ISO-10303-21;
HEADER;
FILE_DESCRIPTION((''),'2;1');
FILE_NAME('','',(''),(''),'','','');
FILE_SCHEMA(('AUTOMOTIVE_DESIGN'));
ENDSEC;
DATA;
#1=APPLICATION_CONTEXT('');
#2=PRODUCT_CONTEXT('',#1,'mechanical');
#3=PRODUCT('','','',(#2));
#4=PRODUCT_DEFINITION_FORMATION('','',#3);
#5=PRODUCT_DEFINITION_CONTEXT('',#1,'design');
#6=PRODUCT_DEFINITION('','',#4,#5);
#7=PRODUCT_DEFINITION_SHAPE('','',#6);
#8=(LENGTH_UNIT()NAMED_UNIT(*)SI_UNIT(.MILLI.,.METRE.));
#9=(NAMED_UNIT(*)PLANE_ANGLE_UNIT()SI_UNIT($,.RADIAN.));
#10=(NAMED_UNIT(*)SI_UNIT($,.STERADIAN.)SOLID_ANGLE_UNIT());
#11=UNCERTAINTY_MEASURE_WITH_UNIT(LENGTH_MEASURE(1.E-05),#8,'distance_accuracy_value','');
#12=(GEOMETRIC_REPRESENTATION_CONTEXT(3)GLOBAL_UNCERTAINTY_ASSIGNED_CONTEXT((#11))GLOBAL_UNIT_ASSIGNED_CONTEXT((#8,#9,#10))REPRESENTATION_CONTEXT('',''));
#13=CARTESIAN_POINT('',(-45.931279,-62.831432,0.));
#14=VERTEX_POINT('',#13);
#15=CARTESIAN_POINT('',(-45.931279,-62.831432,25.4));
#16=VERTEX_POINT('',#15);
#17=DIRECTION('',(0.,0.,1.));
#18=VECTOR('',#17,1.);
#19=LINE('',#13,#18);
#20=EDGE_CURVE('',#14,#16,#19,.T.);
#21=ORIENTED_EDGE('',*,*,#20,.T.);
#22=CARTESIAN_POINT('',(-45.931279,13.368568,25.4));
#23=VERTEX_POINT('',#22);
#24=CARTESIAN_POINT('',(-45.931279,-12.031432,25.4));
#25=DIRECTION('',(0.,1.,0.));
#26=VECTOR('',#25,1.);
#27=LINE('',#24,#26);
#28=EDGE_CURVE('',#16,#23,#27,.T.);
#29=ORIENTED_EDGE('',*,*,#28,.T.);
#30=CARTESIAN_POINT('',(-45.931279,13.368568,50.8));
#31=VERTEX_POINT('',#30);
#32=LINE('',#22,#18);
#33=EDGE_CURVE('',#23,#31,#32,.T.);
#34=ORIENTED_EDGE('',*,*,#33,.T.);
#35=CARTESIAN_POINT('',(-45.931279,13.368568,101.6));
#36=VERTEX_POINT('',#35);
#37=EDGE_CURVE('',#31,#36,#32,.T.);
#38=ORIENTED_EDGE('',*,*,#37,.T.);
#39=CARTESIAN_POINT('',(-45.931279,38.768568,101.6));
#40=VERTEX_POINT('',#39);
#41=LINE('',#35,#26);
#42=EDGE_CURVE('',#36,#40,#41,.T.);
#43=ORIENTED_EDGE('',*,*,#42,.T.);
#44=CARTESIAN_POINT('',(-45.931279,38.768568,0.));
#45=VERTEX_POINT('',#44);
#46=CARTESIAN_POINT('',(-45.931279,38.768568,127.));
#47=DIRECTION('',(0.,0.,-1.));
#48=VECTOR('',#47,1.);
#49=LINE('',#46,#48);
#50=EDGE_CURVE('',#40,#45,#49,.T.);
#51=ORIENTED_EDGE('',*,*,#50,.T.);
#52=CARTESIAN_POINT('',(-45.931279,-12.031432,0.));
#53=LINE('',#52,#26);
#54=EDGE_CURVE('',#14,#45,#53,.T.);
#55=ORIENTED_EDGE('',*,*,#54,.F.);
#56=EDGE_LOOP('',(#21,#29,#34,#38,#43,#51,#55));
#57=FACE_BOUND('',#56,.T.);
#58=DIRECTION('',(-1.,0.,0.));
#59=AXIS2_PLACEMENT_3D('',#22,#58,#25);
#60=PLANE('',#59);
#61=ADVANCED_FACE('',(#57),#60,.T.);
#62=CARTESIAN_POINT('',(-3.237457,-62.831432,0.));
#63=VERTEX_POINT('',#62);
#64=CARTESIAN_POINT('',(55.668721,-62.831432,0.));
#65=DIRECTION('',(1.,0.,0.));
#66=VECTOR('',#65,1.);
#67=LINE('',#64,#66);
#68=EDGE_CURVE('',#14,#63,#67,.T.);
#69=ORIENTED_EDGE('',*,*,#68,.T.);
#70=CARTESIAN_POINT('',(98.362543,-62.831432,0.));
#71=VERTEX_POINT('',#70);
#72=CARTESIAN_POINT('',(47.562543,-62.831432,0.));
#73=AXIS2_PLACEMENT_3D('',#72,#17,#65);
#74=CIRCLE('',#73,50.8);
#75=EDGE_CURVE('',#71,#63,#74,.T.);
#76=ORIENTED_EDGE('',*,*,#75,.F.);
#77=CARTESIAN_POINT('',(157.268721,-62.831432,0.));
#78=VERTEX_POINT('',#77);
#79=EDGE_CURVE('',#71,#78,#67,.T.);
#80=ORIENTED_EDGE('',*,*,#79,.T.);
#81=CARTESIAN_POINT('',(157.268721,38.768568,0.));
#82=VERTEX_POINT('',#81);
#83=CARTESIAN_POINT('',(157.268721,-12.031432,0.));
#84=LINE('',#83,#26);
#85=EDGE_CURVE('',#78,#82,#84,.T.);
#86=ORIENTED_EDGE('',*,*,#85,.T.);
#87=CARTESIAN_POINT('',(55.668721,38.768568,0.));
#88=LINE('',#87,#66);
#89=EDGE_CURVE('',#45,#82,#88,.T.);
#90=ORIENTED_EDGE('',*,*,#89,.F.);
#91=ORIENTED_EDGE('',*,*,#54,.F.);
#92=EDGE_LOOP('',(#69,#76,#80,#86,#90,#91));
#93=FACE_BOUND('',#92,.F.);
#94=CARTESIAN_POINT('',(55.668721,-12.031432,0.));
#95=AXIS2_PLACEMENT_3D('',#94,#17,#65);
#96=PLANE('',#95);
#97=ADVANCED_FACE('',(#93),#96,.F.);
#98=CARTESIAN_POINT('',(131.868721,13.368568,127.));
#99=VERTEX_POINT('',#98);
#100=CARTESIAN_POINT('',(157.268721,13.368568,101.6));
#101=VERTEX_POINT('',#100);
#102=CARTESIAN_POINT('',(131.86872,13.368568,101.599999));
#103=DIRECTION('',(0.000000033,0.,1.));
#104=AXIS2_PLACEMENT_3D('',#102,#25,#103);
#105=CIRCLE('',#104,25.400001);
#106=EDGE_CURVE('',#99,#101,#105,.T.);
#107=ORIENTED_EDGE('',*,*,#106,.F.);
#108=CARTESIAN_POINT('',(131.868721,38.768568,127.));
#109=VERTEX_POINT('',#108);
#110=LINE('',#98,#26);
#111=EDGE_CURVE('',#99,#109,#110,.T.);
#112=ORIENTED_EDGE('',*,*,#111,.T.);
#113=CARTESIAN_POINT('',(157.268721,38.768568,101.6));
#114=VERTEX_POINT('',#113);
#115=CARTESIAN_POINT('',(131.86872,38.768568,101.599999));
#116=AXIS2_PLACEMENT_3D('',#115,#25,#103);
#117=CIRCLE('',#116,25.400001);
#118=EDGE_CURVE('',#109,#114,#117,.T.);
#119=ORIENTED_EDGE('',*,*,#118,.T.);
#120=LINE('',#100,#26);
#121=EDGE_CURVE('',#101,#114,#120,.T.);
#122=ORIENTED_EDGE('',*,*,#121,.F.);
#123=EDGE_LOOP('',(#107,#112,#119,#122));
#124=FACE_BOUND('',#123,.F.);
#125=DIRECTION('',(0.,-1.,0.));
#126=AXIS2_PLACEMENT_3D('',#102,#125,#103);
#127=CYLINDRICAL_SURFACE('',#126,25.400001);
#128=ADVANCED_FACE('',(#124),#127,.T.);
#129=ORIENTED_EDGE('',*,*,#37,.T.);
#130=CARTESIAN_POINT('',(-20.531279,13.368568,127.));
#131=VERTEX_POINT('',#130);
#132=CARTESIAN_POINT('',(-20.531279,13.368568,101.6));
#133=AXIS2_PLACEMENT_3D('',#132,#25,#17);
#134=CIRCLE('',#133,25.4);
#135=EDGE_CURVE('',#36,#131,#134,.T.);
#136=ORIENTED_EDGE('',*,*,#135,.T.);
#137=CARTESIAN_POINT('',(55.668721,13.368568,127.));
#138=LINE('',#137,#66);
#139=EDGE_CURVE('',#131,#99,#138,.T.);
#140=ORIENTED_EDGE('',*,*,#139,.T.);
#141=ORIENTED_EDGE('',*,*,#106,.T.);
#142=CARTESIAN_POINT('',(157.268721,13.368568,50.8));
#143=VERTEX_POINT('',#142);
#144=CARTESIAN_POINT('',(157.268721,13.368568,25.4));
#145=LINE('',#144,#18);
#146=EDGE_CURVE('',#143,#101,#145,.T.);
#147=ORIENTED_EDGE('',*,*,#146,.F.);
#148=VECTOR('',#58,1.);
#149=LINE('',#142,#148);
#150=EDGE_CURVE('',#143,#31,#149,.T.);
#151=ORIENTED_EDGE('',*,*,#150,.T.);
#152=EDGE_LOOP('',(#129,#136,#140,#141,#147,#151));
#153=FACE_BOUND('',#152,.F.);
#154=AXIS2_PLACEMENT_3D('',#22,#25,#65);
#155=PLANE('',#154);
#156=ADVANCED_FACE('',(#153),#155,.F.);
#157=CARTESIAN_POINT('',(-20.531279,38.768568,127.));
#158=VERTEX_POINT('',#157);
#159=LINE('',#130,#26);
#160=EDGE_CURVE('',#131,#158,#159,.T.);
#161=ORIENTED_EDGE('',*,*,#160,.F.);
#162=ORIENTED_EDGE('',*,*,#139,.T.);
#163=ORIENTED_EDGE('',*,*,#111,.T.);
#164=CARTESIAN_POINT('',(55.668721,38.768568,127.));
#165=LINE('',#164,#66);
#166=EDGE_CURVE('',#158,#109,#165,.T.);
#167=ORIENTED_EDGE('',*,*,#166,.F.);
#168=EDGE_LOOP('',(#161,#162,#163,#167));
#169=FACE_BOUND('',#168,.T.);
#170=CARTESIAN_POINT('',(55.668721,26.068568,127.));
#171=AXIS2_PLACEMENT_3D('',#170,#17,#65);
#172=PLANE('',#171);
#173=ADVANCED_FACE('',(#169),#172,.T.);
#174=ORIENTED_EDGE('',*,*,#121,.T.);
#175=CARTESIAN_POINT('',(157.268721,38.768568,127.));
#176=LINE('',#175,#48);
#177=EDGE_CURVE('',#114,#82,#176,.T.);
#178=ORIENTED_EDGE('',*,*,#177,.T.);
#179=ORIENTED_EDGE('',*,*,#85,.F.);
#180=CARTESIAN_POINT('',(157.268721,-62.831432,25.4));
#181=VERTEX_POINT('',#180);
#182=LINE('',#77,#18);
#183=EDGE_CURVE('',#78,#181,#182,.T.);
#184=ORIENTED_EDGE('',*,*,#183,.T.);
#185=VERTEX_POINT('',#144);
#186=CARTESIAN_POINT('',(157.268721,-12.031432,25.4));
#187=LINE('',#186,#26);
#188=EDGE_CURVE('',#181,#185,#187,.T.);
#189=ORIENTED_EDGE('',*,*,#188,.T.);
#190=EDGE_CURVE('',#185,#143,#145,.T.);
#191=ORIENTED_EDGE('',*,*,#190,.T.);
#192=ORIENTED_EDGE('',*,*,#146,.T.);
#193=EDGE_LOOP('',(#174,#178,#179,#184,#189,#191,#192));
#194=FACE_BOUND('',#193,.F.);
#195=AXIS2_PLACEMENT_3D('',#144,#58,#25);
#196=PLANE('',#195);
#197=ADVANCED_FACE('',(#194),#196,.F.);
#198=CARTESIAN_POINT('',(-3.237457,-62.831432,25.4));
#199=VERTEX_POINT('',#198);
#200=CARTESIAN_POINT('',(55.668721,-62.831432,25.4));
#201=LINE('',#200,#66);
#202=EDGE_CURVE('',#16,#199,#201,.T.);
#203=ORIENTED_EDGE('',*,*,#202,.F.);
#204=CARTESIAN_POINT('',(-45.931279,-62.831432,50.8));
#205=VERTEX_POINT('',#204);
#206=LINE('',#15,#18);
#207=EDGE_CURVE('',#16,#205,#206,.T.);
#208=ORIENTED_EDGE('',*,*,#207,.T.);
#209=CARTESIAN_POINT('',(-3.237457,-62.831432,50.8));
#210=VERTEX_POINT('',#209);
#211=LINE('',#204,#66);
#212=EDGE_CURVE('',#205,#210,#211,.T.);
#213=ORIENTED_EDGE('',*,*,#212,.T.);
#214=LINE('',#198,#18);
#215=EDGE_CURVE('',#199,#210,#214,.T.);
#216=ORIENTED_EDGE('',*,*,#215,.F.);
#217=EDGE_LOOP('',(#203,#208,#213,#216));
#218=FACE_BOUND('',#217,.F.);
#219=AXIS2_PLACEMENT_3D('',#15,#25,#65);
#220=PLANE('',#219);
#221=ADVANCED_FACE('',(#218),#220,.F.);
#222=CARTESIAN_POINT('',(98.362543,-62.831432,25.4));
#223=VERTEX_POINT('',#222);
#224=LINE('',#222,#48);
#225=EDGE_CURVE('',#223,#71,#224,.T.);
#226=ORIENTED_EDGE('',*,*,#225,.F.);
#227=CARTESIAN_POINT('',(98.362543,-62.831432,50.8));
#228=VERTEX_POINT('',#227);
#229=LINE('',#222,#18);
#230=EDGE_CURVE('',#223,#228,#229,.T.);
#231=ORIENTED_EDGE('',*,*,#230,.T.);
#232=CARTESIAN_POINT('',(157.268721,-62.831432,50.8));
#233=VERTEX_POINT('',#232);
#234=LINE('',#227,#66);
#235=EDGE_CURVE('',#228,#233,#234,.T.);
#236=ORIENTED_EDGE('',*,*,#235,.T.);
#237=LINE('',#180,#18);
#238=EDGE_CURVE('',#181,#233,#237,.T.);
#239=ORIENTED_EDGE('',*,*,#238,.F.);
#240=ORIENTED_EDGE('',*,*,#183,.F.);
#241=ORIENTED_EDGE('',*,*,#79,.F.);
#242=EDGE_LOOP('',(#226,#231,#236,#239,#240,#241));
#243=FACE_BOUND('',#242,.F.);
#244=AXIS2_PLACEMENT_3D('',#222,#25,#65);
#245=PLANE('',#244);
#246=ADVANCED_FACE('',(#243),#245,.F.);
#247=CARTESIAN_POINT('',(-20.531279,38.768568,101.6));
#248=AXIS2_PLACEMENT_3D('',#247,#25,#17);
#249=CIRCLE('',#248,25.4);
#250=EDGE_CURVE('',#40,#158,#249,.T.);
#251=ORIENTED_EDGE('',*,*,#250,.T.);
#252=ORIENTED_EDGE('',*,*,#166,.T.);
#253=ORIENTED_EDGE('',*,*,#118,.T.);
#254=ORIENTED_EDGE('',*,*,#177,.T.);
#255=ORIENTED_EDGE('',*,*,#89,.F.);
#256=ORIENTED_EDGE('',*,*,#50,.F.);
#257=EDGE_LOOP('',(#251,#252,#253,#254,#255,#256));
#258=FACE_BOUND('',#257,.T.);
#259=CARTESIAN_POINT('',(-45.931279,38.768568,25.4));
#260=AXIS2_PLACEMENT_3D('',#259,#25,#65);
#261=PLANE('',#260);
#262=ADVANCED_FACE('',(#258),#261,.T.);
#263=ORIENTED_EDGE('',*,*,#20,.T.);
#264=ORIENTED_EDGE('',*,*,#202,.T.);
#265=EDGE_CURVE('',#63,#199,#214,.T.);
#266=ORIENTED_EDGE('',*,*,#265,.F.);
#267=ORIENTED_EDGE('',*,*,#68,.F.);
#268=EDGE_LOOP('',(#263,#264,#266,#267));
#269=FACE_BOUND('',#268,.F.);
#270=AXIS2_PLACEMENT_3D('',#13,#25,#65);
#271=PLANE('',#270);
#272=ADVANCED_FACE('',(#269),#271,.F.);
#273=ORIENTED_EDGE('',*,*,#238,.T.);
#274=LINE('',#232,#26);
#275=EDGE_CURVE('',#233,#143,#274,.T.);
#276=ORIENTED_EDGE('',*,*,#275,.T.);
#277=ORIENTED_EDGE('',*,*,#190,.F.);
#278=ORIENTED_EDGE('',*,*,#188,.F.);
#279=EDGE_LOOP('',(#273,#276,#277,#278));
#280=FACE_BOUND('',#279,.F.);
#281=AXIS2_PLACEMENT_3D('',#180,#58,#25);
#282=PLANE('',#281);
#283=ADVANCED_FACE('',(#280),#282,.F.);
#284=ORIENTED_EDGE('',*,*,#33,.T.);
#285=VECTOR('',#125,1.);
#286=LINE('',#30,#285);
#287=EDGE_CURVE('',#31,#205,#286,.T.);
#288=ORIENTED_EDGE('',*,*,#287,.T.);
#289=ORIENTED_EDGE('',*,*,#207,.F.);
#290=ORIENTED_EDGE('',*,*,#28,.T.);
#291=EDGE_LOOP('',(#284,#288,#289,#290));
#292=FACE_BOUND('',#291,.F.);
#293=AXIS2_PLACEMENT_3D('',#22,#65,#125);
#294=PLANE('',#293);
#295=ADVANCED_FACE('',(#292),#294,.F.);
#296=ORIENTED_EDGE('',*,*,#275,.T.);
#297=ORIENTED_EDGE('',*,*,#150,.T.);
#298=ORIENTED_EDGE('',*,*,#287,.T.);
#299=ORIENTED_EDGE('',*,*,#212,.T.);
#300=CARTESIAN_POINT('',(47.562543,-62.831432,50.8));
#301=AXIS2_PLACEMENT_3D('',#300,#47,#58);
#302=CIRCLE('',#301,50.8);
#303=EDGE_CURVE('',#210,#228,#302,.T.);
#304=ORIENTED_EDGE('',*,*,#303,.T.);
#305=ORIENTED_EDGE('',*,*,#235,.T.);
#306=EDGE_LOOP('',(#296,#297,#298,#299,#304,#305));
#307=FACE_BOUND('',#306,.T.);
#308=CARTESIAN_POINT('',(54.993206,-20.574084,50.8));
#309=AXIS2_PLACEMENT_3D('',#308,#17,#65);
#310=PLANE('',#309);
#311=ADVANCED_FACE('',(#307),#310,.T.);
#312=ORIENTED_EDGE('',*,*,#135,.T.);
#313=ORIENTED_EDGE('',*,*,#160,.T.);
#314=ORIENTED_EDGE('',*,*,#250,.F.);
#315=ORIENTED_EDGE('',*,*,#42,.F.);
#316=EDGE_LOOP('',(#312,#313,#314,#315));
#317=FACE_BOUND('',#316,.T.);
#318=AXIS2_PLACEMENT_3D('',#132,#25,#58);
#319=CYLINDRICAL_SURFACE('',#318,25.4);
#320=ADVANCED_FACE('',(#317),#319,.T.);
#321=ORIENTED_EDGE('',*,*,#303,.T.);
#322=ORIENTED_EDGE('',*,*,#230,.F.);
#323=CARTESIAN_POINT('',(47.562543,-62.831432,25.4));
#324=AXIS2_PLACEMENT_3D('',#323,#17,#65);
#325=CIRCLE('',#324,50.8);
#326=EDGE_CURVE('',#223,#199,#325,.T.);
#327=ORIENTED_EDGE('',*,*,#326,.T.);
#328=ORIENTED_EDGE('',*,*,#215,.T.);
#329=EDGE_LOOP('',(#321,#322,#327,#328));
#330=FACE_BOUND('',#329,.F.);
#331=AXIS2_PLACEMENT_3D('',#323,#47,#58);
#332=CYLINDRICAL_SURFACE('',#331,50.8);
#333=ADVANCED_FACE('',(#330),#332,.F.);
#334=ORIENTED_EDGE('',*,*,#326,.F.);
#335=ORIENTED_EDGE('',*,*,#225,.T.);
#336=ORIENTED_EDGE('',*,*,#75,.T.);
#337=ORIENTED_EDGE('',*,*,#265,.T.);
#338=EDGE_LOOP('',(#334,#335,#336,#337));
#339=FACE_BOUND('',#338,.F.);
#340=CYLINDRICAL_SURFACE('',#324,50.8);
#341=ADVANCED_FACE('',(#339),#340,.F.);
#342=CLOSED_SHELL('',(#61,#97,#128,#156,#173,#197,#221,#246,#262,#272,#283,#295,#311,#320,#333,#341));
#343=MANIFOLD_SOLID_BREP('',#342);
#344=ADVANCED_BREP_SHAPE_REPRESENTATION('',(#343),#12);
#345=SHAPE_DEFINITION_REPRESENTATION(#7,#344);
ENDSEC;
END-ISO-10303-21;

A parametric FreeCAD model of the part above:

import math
import FreeCAD as App
import Part
import Sketcher
from FreeCAD import Vector
Q = App.Units.Quantity


def edges_at(feature, points):
    """Names of the edges that pass closest to the given points."""
    edges = feature.Shape.Edges
    near = lambda p: min(range(len(edges)), key=lambda i: edges[i].distToShape(Part.Vertex(*p))[0])
    return sorted({f"Edge{near(p) + 1}" for p in points})


def add_polygon(sketch, points):
    """Adds a closed chain of lines whose ends are joined by coincident constraints."""
    first, n = sketch.GeometryCount, len(points)
    for a, b in zip(points, points[1:] + points[:1]):
        sketch.addGeometry(Part.LineSegment(App.Vector(*a, 0), App.Vector(*b, 0)), False)
    for i in range(n):
        sketch.addConstraint(Sketcher.Constraint("Coincident", first + i, 2, first + (i + 1) % n, 1))

doc = App.newDocument("Part")
body = doc.addObject("PartDesign::Body", "Body")

sketch1 = doc.addObject("Sketcher::SketchObject", "Sketch")
body.addObject(sketch1)
sketch1.AttachmentSupport = (doc.XY_Plane, [""])
sketch1.MapMode = "FlatFace"
add_polygon(sketch1, [(-46, 39), (-46, -63), (157, -63), (157, 39)])
sketch1.addConstraint(Sketcher.Constraint("Vertical", 0))
sketch1.addConstraint(Sketcher.Constraint("Horizontal", 1))
sketch1.addConstraint(Sketcher.Constraint("Vertical", 2))
sketch1.addConstraint(Sketcher.Constraint("Horizontal", 3))
sketch1.addConstraint(Sketcher.Constraint("DistanceX", 1, 1, 1, 2, Q("8 in")))
sketch1.addConstraint(Sketcher.Constraint("DistanceY", 0, 2, 0, 1, Q("4 in")))
sketch1.addConstraint(Sketcher.Constraint("DistanceX", 0, 2, -1, 1, Q("45.931279 mm")))
sketch1.addConstraint(Sketcher.Constraint("DistanceY", -1, 1, 2, 2, Q("38.768568 mm")))
pad1 = doc.addObject("PartDesign::Pad", "Pad")
body.addObject(pad1)
pad1.Profile = sketch1
pad1.Length = Q("1 in")

sketch2 = doc.addObject("Sketcher::SketchObject", "Sketch001")
body.addObject(sketch2)
sketch2.AttachmentSupport = (doc.XY_Plane, [""])
sketch2.MapMode = "FlatFace"
sketch2.AttachmentOffset = App.Placement(Vector(0, 0, 1 * 25.4), App.Rotation())
add_polygon(sketch2, [(-46, 39), (-46, 13), (157, 13), (157, 39)])
sketch2.addConstraint(Sketcher.Constraint("Vertical", 0))
sketch2.addConstraint(Sketcher.Constraint("Horizontal", 1))
sketch2.addConstraint(Sketcher.Constraint("Vertical", 2))
sketch2.addConstraint(Sketcher.Constraint("Horizontal", 3))
sketch2.addConstraint(Sketcher.Constraint("DistanceX", 1, 1, 1, 2, Q("8 in")))
sketch2.addConstraint(Sketcher.Constraint("DistanceY", 0, 2, 0, 1, Q("1 in")))
sketch2.addConstraint(Sketcher.Constraint("DistanceX", 0, 2, -1, 1, Q("45.931279 mm")))
sketch2.addConstraint(Sketcher.Constraint("DistanceY", -1, 1, 2, 2, Q("38.768568 mm")))
pad2 = doc.addObject("PartDesign::Pad", "Pad001")
body.addObject(pad2)
pad2.Profile = sketch2
pad2.Length = Q("4 in")

sketch3 = doc.addObject("Sketcher::SketchObject", "Sketch002")
body.addObject(sketch3)
sketch3.AttachmentSupport = (doc.XZ_Plane, [""])
sketch3.MapMode = "FlatFace"
sketch3.AttachmentOffset = App.Placement(Vector(0, 0, -13.368568), App.Rotation())
sketch3.addGeometry(Part.LineSegment(Vector(157, 102, 0), Vector(157, 127, 0)), False)
sketch3.addGeometry(Part.LineSegment(Vector(157, 127, 0), Vector(132, 127, 0)), False)
sketch3.addGeometry(Part.ArcOfCircle(Part.Circle(Vector(132, 102, 0), Vector(0, 0, 1), 25), math.radians(0), math.radians(90)), False)
sketch3.addConstraint(Sketcher.Constraint("Coincident", 0, 2, 1, 1))
sketch3.addConstraint(Sketcher.Constraint("Tangent", 1, 2, 2, 2))
sketch3.addConstraint(Sketcher.Constraint("Tangent", 2, 1, 0, 1))
sketch3.addConstraint(Sketcher.Constraint("Vertical", 0))
sketch3.addConstraint(Sketcher.Constraint("Horizontal", 1))
sketch3.addConstraint(Sketcher.Constraint("Radius", 2, Q("1 in")))
sketch3.addConstraint(Sketcher.Constraint("DistanceY", -1, 1, 2, 3, Q("4 in")))
sketch3.addConstraint(Sketcher.Constraint("DistanceX", -1, 1, 2, 3, Q("131.86872 mm")))
pocket1 = doc.addObject("PartDesign::Pocket", "Pocket")
body.addObject(pocket1)
pocket1.Profile = sketch3
pocket1.Length = Q("1 in")
doc.recompute()

fillet = doc.addObject("PartDesign::Fillet", "Fillet")
body.addObject(fillet)
fillet.Base = (pocket1, edges_at(pocket1, [(-45.931, 26.069, 127)]))
fillet.Radius = Q("1 in")

sketch4 = doc.addObject("Sketcher::SketchObject", "Sketch003")
body.addObject(sketch4)
sketch4.AttachmentSupport = (doc.XY_Plane, [""])
sketch4.MapMode = "FlatFace"
sketch4.AttachmentOffset = App.Placement(Vector(0, 0, 1 * 25.4), App.Rotation())
sketch4.addGeometry(Part.Circle(Vector(48, -63, 0), Vector(0, 0, 1), 51), False)
sketch4.addConstraint(Sketcher.Constraint("Diameter", 0, Q("4 in")))
sketch4.addConstraint(Sketcher.Constraint("DistanceX", -1, 1, 0, 3, Q("47.562543 mm")))
sketch4.addConstraint(Sketcher.Constraint("DistanceY", 0, 3, -1, 1, Q("62.831432 mm")))
pocket2 = doc.addObject("PartDesign::Pocket", "Pocket001")
body.addObject(pocket2)
pocket2.Profile = sketch4
pocket2.Length = Q("1 in")

sketch5 = doc.addObject("Sketcher::SketchObject", "Sketch004")
body.addObject(sketch5)
sketch5.AttachmentSupport = (doc.XY_Plane, [""])
sketch5.MapMode = "FlatFace"
sketch5.AttachmentOffset = App.Placement(Vector(0, 0, 1 * 25.4), App.Rotation())
sketch5.addGeometry(Part.LineSegment(Vector(98, -63, 0), Vector(157, -63, 0)), False)
sketch5.addGeometry(Part.LineSegment(Vector(157, -63, 0), Vector(157, 13, 0)), False)
sketch5.addGeometry(Part.LineSegment(Vector(157, 13, 0), Vector(-46, 13, 0)), False)
sketch5.addGeometry(Part.LineSegment(Vector(-46, 13, 0), Vector(-46, -63, 0)), False)
sketch5.addGeometry(Part.LineSegment(Vector(-46, -63, 0), Vector(-3, -63, 0)), False)
sketch5.addGeometry(Part.ArcOfCircle(Part.Circle(Vector(48, -63, 0), Vector(0, 0, 1), 51), math.radians(0), math.radians(180)), False)
sketch5.addConstraint(Sketcher.Constraint("Coincident", 0, 2, 1, 1))
sketch5.addConstraint(Sketcher.Constraint("Coincident", 1, 2, 2, 1))
sketch5.addConstraint(Sketcher.Constraint("Coincident", 2, 2, 3, 1))
sketch5.addConstraint(Sketcher.Constraint("Coincident", 3, 2, 4, 1))
sketch5.addConstraint(Sketcher.Constraint("Coincident", 4, 2, 5, 2))
sketch5.addConstraint(Sketcher.Constraint("Coincident", 5, 1, 0, 1))
sketch5.addConstraint(Sketcher.Constraint("Horizontal", 0))
sketch5.addConstraint(Sketcher.Constraint("Vertical", 1))
sketch5.addConstraint(Sketcher.Constraint("Horizontal", 2))
sketch5.addConstraint(Sketcher.Constraint("Vertical", 3))
sketch5.addConstraint(Sketcher.Constraint("Horizontal", 4))
sketch5.addConstraint(Sketcher.Constraint("Horizontal", 5, 3, 0, 2))
sketch5.addConstraint(Sketcher.Constraint("Horizontal", 0, 2, 3, 2))
sketch5.addConstraint(Sketcher.Constraint("Radius", 5, Q("2 in")))
sketch5.addConstraint(Sketcher.Constraint("DistanceX", 2, 2, 2, 1, Q("8 in")))
sketch5.addConstraint(Sketcher.Constraint("DistanceY", 1, 1, 1, 2, Q("3 in")))
sketch5.addConstraint(Sketcher.Constraint("DistanceX", 0, 1, 0, 2, Q("58.906178 mm")))
sketch5.addConstraint(Sketcher.Constraint("DistanceX", -1, 1, 0, 2, Q("157.268721 mm")))
sketch5.addConstraint(Sketcher.Constraint("DistanceY", 5, 3, -1, 1, Q("62.831432 mm")))
pad3 = doc.addObject("PartDesign::Pad", "Pad002")
body.addObject(pad3)
pad3.Profile = sketch5
pad3.Length = Q("1 in")

doc.recompute()
